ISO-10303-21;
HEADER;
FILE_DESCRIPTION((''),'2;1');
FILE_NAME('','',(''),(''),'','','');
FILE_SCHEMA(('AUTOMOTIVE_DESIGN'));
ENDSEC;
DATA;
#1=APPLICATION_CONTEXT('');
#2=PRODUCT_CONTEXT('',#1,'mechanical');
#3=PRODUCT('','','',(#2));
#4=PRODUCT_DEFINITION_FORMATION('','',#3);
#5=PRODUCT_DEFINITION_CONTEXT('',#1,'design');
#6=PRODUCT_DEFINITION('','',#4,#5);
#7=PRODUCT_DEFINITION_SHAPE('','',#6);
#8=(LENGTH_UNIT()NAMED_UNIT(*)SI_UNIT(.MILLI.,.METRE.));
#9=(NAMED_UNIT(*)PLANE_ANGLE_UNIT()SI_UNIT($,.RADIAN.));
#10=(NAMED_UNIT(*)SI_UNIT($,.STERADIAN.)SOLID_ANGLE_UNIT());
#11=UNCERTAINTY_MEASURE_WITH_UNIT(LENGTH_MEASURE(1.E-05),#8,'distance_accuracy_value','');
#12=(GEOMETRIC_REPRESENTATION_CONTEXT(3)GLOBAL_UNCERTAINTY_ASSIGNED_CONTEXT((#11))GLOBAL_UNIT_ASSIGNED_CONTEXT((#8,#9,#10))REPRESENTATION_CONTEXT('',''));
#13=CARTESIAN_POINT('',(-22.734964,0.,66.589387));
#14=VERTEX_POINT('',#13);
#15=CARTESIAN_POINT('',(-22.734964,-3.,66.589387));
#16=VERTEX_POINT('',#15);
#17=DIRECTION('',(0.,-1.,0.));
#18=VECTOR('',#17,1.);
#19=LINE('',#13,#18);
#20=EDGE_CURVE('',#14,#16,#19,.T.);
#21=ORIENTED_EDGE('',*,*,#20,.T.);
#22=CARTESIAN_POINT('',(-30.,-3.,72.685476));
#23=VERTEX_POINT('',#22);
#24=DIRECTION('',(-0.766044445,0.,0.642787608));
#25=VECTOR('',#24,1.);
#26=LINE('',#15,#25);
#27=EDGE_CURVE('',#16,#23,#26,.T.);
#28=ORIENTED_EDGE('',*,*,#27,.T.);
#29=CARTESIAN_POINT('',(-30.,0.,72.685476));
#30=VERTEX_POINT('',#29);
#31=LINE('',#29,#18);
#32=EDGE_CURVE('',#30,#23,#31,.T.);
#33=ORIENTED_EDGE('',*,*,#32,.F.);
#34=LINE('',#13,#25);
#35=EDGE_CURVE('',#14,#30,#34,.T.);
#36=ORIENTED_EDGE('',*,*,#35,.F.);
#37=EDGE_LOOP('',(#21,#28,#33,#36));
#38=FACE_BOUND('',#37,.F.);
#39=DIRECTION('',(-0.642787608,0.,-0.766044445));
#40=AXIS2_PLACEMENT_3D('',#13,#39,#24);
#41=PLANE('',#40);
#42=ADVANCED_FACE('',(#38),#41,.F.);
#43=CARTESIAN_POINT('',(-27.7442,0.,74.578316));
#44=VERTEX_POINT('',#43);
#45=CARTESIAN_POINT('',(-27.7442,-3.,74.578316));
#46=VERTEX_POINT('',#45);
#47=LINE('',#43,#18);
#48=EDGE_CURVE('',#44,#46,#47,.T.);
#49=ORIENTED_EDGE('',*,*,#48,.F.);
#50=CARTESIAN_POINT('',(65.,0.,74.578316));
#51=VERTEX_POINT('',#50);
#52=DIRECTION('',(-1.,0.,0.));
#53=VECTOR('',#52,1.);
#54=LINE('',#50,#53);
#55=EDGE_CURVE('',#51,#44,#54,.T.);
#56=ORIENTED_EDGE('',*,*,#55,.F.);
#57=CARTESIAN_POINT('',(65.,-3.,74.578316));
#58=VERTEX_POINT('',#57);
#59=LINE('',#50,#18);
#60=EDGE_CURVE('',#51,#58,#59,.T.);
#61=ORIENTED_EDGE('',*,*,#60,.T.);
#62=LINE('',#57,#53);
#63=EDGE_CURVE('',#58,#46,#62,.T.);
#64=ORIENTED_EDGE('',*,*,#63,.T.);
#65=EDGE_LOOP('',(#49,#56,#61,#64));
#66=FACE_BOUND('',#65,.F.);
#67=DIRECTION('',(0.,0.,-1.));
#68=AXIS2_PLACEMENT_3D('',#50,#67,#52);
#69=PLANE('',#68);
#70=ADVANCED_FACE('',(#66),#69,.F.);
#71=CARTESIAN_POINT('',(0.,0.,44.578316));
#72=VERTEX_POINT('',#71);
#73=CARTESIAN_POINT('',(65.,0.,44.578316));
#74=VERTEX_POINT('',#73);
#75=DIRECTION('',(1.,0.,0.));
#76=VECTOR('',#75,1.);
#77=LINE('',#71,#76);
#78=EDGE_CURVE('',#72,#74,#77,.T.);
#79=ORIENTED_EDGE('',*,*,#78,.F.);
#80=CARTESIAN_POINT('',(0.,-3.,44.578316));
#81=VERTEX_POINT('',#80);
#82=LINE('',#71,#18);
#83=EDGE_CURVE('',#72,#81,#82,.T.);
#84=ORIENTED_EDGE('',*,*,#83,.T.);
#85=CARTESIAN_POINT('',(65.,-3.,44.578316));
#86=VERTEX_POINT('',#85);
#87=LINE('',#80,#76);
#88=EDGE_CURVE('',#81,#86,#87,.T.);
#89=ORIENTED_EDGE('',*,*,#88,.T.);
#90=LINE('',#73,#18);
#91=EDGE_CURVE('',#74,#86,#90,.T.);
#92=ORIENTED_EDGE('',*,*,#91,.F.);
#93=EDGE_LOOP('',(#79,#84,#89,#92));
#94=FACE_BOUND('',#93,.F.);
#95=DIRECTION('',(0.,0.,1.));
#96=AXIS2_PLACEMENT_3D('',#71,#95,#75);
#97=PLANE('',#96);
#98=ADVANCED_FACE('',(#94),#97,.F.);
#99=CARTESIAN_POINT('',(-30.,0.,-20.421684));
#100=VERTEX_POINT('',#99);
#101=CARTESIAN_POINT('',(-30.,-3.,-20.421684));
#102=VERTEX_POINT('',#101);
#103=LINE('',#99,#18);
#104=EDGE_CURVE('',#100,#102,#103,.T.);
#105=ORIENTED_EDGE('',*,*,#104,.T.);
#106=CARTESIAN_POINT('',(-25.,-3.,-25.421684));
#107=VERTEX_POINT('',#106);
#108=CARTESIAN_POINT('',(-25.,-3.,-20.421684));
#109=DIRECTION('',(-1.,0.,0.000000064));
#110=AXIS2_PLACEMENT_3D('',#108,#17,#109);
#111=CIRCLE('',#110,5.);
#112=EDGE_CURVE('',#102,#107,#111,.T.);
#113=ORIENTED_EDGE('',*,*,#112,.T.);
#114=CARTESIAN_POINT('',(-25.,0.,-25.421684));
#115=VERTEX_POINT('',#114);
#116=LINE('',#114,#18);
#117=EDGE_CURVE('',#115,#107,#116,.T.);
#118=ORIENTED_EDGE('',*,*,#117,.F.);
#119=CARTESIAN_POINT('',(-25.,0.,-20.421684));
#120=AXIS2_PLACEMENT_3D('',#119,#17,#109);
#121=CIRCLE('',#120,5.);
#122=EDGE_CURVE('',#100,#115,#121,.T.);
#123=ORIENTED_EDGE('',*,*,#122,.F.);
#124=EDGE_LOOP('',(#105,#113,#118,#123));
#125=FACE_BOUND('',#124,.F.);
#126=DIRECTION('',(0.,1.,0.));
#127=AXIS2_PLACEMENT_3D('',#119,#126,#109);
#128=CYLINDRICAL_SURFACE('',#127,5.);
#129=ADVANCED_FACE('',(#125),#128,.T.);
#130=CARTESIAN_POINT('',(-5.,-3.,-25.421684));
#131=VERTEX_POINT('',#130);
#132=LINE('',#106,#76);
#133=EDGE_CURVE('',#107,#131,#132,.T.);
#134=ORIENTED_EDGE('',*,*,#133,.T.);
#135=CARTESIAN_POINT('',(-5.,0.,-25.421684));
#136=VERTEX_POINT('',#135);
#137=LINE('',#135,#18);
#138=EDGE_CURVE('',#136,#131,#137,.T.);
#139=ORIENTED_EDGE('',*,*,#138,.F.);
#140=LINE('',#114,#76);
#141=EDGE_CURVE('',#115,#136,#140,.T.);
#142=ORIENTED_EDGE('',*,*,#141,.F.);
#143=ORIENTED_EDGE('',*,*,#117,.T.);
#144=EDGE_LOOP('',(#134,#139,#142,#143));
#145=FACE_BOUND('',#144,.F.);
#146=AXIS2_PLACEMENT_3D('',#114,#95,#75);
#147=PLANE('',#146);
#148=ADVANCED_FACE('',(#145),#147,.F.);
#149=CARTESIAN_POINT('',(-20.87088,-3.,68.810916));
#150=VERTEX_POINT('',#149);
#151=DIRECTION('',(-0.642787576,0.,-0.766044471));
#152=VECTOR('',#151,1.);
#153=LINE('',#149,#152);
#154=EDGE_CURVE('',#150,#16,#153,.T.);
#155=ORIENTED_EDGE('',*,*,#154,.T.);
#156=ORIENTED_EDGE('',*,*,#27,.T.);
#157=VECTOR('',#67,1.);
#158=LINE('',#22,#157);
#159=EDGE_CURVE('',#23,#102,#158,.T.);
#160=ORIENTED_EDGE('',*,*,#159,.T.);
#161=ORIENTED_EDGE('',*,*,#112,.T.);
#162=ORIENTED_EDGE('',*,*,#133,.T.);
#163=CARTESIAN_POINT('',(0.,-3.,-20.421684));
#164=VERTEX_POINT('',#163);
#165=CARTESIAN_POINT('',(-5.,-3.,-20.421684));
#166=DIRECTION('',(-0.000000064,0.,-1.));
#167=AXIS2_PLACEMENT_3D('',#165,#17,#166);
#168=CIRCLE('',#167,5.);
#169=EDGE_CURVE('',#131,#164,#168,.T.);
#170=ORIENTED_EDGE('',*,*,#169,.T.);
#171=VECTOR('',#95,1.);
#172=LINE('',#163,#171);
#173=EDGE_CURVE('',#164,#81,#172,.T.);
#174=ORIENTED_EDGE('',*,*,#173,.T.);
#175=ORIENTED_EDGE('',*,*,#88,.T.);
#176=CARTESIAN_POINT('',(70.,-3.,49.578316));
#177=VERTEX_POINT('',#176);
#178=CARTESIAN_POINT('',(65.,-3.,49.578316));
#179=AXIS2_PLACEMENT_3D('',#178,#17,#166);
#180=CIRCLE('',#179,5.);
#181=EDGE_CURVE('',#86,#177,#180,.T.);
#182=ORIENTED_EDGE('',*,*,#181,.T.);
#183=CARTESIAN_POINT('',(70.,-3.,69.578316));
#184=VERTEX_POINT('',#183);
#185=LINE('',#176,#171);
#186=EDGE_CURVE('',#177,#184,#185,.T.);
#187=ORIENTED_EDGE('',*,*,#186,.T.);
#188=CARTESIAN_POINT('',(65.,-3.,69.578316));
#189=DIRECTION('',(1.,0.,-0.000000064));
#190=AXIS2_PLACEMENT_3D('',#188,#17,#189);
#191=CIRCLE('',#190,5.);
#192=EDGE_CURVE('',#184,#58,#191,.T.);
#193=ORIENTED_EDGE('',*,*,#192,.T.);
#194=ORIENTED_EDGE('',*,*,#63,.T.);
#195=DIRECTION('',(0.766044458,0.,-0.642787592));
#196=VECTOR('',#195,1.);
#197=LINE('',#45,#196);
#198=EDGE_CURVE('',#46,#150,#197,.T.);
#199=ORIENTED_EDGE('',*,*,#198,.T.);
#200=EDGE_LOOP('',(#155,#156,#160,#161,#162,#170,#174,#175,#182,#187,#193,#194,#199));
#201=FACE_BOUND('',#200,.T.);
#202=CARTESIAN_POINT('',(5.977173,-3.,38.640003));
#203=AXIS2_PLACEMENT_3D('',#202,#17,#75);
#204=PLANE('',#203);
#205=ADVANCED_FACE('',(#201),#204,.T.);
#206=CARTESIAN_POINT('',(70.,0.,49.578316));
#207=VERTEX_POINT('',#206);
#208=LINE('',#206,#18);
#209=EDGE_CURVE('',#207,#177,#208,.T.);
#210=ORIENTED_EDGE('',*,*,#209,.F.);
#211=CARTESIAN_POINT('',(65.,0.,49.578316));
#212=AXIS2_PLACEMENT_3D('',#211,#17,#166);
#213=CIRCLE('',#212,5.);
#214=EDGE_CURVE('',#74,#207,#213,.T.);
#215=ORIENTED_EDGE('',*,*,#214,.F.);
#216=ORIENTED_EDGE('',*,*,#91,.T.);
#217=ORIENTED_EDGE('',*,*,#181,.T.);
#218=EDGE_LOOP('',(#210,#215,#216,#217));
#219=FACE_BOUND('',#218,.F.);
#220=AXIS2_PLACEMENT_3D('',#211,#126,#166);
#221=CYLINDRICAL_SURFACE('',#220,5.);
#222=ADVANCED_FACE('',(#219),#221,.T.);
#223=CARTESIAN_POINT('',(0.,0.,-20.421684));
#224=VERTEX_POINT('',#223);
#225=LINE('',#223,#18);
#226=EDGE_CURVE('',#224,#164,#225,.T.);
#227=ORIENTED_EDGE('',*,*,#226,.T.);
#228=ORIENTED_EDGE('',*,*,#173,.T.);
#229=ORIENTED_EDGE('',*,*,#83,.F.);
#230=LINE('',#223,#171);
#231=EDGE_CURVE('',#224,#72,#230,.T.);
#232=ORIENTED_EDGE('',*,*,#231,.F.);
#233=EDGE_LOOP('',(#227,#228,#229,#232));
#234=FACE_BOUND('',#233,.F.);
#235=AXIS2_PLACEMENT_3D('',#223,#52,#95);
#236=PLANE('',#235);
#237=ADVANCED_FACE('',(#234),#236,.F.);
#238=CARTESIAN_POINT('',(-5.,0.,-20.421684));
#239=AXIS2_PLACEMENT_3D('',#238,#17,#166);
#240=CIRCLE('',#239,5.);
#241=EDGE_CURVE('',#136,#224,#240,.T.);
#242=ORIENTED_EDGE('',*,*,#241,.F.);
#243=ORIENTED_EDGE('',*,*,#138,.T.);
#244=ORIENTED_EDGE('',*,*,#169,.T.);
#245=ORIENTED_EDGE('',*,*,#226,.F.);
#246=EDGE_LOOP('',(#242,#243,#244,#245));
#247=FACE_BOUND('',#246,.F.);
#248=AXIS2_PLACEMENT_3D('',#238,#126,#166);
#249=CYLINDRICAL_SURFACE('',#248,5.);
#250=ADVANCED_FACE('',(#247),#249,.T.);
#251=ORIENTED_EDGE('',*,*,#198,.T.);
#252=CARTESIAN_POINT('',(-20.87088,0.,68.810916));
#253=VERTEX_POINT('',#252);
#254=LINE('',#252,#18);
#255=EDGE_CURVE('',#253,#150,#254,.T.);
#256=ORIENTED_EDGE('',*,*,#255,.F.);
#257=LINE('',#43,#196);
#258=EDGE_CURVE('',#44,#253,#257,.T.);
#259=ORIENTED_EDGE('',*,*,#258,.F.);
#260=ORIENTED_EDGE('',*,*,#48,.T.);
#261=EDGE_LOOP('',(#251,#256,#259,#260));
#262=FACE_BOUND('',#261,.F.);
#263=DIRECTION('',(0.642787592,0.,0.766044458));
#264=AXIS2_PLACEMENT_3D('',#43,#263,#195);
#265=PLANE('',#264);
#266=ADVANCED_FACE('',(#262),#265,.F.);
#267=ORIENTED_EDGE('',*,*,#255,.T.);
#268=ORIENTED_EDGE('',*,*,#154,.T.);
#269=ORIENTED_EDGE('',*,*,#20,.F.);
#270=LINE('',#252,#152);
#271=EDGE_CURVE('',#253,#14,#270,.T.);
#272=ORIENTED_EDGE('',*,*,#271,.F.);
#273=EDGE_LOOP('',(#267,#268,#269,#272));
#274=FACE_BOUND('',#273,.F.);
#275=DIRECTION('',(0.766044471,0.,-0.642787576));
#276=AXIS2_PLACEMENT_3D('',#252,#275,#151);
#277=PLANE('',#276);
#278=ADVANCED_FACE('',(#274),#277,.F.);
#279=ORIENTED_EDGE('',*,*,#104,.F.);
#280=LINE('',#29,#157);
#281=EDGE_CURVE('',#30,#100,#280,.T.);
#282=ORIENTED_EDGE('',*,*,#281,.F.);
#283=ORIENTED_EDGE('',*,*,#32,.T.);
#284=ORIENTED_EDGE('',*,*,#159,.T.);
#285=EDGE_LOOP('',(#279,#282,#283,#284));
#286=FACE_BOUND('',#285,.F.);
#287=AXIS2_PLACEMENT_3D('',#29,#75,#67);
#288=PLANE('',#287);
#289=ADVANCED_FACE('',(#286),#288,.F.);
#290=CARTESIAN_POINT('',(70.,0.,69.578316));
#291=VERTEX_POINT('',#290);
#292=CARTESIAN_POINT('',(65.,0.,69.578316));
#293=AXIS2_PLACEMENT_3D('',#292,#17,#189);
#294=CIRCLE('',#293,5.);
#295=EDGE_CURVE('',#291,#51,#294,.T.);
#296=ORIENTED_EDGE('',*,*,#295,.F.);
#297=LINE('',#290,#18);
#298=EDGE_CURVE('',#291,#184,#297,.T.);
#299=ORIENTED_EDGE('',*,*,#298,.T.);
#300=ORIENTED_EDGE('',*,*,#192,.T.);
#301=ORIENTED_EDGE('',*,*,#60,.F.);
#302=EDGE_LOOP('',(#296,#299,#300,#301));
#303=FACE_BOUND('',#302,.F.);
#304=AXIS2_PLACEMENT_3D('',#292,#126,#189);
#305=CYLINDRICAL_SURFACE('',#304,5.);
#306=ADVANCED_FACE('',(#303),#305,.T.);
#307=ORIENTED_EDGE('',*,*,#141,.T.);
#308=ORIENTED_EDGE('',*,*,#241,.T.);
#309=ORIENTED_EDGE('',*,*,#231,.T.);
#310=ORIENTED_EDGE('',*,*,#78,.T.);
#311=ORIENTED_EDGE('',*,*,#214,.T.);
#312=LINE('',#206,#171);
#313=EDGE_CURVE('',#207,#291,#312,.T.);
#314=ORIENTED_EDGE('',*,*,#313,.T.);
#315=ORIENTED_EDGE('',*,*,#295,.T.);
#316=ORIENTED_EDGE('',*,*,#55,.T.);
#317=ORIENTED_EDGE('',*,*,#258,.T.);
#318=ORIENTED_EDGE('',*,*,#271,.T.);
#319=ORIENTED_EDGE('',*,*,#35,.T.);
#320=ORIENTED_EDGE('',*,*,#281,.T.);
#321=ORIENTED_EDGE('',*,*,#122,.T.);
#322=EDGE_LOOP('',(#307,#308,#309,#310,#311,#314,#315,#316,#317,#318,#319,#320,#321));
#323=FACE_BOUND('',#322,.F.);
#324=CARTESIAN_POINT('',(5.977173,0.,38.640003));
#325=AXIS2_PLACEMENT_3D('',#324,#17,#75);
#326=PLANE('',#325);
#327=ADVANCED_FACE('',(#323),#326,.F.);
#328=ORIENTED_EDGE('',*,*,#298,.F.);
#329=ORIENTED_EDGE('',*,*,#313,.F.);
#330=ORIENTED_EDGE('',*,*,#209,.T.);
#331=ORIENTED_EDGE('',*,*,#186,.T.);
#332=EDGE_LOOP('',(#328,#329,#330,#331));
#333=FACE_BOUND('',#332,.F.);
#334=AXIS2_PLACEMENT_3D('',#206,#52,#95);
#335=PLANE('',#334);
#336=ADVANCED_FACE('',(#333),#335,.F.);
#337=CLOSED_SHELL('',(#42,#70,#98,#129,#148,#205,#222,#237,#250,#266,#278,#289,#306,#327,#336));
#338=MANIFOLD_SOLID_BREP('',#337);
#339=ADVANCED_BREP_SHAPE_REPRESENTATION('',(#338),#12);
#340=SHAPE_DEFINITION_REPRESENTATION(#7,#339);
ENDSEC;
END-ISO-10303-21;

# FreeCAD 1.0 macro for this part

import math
import FreeCAD as App
import Part
import Sketcher
from FreeCAD import Vector
Q = App.Units.Quantity

doc = App.newDocument("Part")
body = doc.addObject("PartDesign::Body", "Body")

# Sketch on XZ plane
sketch1 = doc.addObject("Sketcher::SketchObject", "Sketch")
body.addObject(sketch1)
sketch1.AttachmentSupport = (doc.XZ_Plane, [""])
sketch1.MapMode = "FlatFace"
sketch1.addGeometry(Part.LineSegment(Vector(65, 74.578316, 0), Vector(-27.7442, 74.578316, 0)), False)
sketch1.addGeometry(Part.LineSegment(Vector(-27.7442, 74.578316, 0), Vector(-20.87088, 68.810916, 0)), False)
sketch1.addGeometry(Part.LineSegment(Vector(-20.87088, 68.810916, 0), Vector(-22.734964, 66.589387, 0)), False)
sketch1.addGeometry(Part.LineSegment(Vector(-22.734964, 66.589387, 0), Vector(-30, 72.685476, 0)), False)
sketch1.addGeometry(Part.LineSegment(Vector(-30, 72.685476, 0), Vector(-30, -20.421684, 0)), False)
sketch1.addGeometry(Part.ArcOfCircle(Part.Circle(Vector(-25, -20.421684, 0), Vector(0, 0, 1), 5), math.radians(179.999996), math.radians(270.000004)), False)
sketch1.addGeometry(Part.LineSegment(Vector(-25, -25.421684, 0), Vector(-5, -25.421684, 0)), False)
sketch1.addGeometry(Part.ArcOfCircle(Part.Circle(Vector(-5, -20.421684, 0), Vector(0, 0, 1), 5), math.radians(-90.000004), math.radians(0.000004)), False)
sketch1.addGeometry(Part.LineSegment(Vector(0, -20.421684, 0), Vector(0, 44.578316, 0)), False)
sketch1.addGeometry(Part.LineSegment(Vector(0, 44.578316, 0), Vector(65, 44.578316, 0)), False)
sketch1.addGeometry(Part.ArcOfCircle(Part.Circle(Vector(65, 49.578316, 0), Vector(0, 0, 1), 5), math.radians(-90.000004), math.radians(0.000004)), False)
sketch1.addGeometry(Part.LineSegment(Vector(70, 49.578316, 0), Vector(70, 69.578316, 0)), False)
sketch1.addGeometry(Part.ArcOfCircle(Part.Circle(Vector(65, 69.578316, 0), Vector(0, 0, 1), 5), math.radians(-0.000004), math.radians(90.000004)), False)
sketch1.addConstraint(Sketcher.Constraint("Coincident", 0, 2, 1, 1))
sketch1.addConstraint(Sketcher.Constraint("Coincident", 1, 2, 2, 1))
sketch1.addConstraint(Sketcher.Constraint("Coincident", 2, 2, 3, 1))
sketch1.addConstraint(Sketcher.Constraint("Coincident", 3, 2, 4, 1))
sketch1.addConstraint(Sketcher.Constraint("Tangent", 4, 2, 5, 1))
sketch1.addConstraint(Sketcher.Constraint("Tangent", 5, 2, 6, 1))
sketch1.addConstraint(Sketcher.Constraint("Tangent", 6, 2, 7, 1))
sketch1.addConstraint(Sketcher.Constraint("Tangent", 7, 2, 8, 1))
sketch1.addConstraint(Sketcher.Constraint("Coincident", 8, 2, 9, 1))
sketch1.addConstraint(Sketcher.Constraint("Tangent", 9, 2, 10, 1))
sketch1.addConstraint(Sketcher.Constraint("Tangent", 10, 2, 11, 1))
sketch1.addConstraint(Sketcher.Constraint("Tangent", 11, 2, 12, 1))
sketch1.addConstraint(Sketcher.Constraint("Tangent", 12, 2, 0, 1))
sketch1.addConstraint(Sketcher.Constraint("Horizontal", 0))
sketch1.addConstraint(Sketcher.Constraint("Vertical", 4))
sketch1.addConstraint(Sketcher.Constraint("Horizontal", 6))
sketch1.addConstraint(Sketcher.Constraint("Vertical", 8))
sketch1.addConstraint(Sketcher.Constraint("Horizontal", 9))
sketch1.addConstraint(Sketcher.Constraint("Vertical", 11))
sketch1.addConstraint(Sketcher.Constraint("Equal", 5, 7))
sketch1.addConstraint(Sketcher.Constraint("Equal", 7, 10))
sketch1.addConstraint(Sketcher.Constraint("Equal", 10, 12))
sketch1.addConstraint(Sketcher.Constraint("PointOnObject", 7, 2, -2))
sketch1.addConstraint(Sketcher.Constraint("Perpendicular", 1, 2))
sketch1.addConstraint(Sketcher.Constraint("Perpendicular", 2, 3))
sketch1.addConstraint(Sketcher.Constraint("Equal", 9, 8))
sketch1.addConstraint(Sketcher.Constraint("Equal", 6, 11))
sketch1.addConstraint(Sketcher.Constraint("Radius", 5, 5.0))
sketch1.addConstraint(Sketcher.Constraint("DistanceX", 6, 1, 6, 2, 20.0))
sketch1.addConstraint(Sketcher.Constraint("DistanceX", 9, 1, 9, 2, 65.0))
sketch1.addConstraint(Sketcher.Constraint("Angle", 1, Q("-39.999999 deg")))
sketch1.addConstraint(Sketcher.Constraint("Distance", 2, 2.9))
sketch1.addConstraint(Sketcher.Constraint("DistanceX", 0, 2, 0, 1, 92.7442))
sketch1.addConstraint(Sketcher.Constraint("DistanceY", 1, 2, 0, 2, 5.7674))
sketch1.addConstraint(Sketcher.Constraint("DistanceY", 5, 3, -1, 1, 20.421684))
pad1 = doc.addObject("PartDesign::Pad", "Pad")
body.addObject(pad1)
pad1.Profile = sketch1
pad1.Length = 3

doc.recompute()
